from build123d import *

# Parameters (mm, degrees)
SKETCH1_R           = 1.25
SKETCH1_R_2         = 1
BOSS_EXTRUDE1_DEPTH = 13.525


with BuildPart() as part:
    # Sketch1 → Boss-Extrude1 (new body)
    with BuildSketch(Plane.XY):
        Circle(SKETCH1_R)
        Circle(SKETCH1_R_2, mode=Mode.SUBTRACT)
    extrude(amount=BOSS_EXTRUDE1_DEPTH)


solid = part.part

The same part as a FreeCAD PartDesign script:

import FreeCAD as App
import Part
import Sketcher
from FreeCAD import Vector
Q = App.Units.Quantity

doc = App.newDocument("Part")
body = doc.addObject("PartDesign::Body", "Body")

# Sketch on XY plane
sketch1 = body.newObject("Sketcher::SketchObject", "Sketch")
sketch1.AttachmentSupport = (doc.getObject("XY_Plane"), [""])
sketch1.MapMode = "FlatFace"
sketch1.addGeometry([
    Part.Circle(Vector(0, 0, 0), Vector(0, 0, 1), 1.2),
    Part.Circle(Vector(0, 0, 0), Vector(0, 0, 1), 1),
], False)
sketch1.addConstraint([
    Sketcher.Constraint("Coincident", 0, 3, -1, 1),
    Sketcher.Constraint("Coincident", 1, 3, -1, 1),
    Sketcher.Constraint("Diameter", 1, Q("2 mm")),
    Sketcher.Constraint("Diameter", 0, Q("2.5 mm")),
])
pad1 = body.newObject("PartDesign::Pad", "Pad")
pad1.Profile = sketch1
pad1.Length = 13.525

doc.recompute()
